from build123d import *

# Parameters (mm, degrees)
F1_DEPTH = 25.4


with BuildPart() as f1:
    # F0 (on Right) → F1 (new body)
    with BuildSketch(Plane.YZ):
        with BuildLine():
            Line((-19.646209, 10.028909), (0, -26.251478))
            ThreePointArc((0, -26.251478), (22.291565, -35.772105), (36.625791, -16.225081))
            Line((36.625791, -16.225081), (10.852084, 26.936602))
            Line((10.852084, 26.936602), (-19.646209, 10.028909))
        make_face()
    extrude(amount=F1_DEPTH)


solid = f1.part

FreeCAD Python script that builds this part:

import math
import FreeCAD as App
import Part
import Sketcher
from FreeCAD import Vector
Q = App.Units.Quantity

doc = App.newDocument("Part")
body = doc.addObject("PartDesign::Body", "Body")

# Sketch on YZ plane
sketch1 = body.newObject("Sketcher::SketchObject", "Sketch")
sketch1.AttachmentSupport = (doc.getObject("YZ_Plane"), [""])
sketch1.MapMode = "FlatFace"
sketch1.addGeometry([
    Part.LineSegment(Vector(-19.646209, 10.028909, 0), Vector(0, -26.251478, 0)),
    Part.ArcOfCircle(Part.Circle(Vector(17.143868, -16.967895, 0), Vector(0, 0, 1), 19.496079), math.radians(-151.563992), math.radians(2.183536)),
    Part.LineSegment(Vector(36.625791, -16.225081, 0), Vector(10.852084, 26.936602, 0)),
    Part.LineSegment(Vector(10.852084, 26.936602, 0), Vector(-19.646209, 10.028909, 0)),
], False)
sketch1.addConstraint([
    Sketcher.Constraint("Coincident", 0, 2, 1, 1),
    Sketcher.Constraint("Coincident", 1, 2, 2, 1),
    Sketcher.Constraint("Coincident", 2, 2, 3, 1),
    Sketcher.Constraint("Coincident", 3, 2, 0, 1),
    Sketcher.Constraint("PointOnObject", 0, 2, -2),
    Sketcher.Constraint("Radius", 1, Q("19.496079 mm")),
    Sketcher.Constraint("DistanceX", 3, 2, 1, 2, Q("56.272 mm")),
    Sketcher.Constraint("Distance", 0, Q("41.258211 mm")),
    Sketcher.Constraint("Distance", 2, Q("50.271412 mm")),
    Sketcher.Constraint("Distance", 3, Q("34.87142 mm")),
    Sketcher.Constraint("DistanceX", -1, 1, 1, 2, Q("36.625791 mm")),
    Sketcher.Constraint("DistanceY", 1, 2, -1, 1, Q("16.225081 mm")),
    Sketcher.Constraint("DistanceY", -1, 1, 3, 2, Q("10.028909 mm")),
])
pad1 = body.newObject("PartDesign::Pad", "Pad")
pad1.Profile = sketch1
pad1.Length = Q("1 in")

doc.recompute()
